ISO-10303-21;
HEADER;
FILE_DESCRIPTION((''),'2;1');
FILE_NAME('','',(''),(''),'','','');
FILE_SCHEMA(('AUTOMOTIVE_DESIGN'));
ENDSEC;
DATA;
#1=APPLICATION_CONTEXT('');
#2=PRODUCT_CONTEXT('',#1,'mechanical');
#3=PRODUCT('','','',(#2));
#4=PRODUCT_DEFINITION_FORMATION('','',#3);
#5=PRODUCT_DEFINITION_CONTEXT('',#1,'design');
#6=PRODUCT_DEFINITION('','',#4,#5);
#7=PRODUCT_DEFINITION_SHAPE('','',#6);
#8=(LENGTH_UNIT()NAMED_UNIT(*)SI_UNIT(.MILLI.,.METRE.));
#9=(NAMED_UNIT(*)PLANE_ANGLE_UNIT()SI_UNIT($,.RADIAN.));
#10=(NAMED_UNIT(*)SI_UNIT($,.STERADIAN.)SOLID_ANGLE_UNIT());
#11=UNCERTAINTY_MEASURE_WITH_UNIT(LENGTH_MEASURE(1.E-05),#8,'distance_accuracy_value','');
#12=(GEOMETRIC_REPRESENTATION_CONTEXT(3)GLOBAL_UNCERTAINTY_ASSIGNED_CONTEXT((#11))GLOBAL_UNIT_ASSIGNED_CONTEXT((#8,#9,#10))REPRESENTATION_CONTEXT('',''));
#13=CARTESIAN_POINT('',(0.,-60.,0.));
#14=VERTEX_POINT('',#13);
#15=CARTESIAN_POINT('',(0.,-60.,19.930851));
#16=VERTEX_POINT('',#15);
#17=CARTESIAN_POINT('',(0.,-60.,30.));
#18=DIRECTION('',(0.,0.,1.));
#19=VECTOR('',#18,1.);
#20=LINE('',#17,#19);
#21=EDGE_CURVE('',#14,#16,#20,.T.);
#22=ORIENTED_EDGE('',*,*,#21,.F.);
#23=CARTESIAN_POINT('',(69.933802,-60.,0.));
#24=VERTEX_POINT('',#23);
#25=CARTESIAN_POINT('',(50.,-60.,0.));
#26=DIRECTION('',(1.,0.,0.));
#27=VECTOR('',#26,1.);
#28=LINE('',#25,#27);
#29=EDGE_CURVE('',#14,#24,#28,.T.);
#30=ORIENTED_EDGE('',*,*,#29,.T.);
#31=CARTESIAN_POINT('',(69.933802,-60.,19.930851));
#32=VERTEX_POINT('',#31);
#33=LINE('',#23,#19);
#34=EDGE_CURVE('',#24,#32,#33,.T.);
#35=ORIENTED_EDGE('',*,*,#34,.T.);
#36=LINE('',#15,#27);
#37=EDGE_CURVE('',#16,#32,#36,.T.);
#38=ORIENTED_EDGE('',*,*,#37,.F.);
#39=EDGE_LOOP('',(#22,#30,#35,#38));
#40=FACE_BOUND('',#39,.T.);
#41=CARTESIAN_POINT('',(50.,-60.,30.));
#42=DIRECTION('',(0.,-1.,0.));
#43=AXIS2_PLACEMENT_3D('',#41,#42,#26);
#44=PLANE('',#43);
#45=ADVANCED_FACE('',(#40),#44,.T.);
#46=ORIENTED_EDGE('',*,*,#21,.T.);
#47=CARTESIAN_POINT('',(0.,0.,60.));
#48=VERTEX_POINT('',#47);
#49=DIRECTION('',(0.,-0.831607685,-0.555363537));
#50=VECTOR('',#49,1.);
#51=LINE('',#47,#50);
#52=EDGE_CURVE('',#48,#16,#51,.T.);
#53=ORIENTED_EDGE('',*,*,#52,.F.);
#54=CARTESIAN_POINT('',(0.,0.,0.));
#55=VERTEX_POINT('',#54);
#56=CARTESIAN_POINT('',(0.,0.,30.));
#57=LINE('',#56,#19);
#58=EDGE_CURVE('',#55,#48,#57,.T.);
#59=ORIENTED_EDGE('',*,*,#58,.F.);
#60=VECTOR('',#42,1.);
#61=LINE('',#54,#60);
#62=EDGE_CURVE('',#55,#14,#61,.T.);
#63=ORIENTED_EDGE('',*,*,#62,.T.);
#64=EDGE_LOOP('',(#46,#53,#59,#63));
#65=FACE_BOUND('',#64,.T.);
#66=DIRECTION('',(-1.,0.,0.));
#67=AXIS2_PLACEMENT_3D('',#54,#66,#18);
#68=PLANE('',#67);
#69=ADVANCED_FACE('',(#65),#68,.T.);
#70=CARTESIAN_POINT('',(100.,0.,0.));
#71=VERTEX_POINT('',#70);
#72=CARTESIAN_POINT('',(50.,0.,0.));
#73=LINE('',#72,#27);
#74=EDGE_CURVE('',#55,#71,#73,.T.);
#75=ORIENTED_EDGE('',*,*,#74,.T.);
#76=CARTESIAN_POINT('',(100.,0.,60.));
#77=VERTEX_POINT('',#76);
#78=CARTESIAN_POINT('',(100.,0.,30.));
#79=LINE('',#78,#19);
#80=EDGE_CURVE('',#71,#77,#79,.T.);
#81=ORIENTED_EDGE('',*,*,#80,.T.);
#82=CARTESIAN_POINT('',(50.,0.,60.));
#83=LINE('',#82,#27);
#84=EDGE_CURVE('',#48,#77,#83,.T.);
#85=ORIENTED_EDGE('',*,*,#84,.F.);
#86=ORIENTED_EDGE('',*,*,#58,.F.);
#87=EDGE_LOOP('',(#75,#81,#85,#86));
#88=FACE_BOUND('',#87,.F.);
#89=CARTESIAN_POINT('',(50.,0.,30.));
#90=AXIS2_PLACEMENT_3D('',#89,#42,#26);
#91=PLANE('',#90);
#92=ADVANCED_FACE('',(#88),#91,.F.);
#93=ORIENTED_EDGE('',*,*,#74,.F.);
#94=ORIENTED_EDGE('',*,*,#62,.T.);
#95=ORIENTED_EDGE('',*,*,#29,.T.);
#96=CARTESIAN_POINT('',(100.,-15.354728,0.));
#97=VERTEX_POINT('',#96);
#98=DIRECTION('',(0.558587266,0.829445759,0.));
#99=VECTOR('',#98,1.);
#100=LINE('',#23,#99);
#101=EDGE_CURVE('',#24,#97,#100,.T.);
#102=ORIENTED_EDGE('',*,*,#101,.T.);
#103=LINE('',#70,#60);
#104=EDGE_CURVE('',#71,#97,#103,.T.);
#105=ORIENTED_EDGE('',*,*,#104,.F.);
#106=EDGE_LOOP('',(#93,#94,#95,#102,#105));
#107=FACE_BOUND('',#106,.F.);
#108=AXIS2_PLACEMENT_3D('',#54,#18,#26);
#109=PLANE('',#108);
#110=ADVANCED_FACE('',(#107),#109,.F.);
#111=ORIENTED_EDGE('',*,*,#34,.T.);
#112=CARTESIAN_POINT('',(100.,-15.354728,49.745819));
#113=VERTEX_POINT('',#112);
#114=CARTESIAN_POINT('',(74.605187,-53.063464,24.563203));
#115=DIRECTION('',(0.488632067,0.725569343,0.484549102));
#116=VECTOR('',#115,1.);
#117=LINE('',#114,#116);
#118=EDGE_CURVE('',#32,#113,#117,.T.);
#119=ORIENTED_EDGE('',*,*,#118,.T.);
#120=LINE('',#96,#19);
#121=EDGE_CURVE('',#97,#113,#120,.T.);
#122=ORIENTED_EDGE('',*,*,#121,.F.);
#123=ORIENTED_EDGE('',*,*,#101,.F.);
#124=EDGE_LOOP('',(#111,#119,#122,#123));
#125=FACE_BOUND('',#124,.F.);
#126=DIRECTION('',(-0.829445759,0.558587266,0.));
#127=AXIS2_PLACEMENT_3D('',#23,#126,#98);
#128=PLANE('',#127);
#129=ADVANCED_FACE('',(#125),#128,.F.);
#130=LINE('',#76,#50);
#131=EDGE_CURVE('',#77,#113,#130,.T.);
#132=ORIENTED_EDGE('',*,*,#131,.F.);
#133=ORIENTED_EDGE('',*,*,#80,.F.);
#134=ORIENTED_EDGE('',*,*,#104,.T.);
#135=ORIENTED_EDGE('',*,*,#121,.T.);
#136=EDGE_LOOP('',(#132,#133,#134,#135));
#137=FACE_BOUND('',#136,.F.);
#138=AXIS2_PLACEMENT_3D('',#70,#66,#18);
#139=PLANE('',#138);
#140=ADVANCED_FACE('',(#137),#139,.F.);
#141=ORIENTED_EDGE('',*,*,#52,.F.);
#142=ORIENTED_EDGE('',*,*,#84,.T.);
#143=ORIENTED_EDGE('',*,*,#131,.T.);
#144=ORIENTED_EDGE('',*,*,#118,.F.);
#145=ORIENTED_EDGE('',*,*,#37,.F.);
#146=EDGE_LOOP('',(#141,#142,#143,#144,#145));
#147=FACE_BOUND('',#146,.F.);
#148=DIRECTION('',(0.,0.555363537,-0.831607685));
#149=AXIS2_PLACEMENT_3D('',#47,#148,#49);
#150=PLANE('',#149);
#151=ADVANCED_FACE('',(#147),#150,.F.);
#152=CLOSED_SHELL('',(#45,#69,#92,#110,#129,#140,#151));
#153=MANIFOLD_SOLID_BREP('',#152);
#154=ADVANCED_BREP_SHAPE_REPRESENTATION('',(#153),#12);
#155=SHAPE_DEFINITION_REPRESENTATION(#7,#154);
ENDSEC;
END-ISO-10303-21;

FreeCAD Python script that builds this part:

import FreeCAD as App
import Part
import Sketcher

V = App.Vector


def add_polygon(sketch, points):
    """Adds a closed chain of lines whose ends are joined by coincident constraints."""
    first, n = sketch.GeometryCount, len(points)
    for a, b in zip(points, points[1:] + points[:1]):
        sketch.addGeometry(Part.LineSegment(App.Vector(*a, 0), App.Vector(*b, 0)), False)
    for i in range(n):
        sketch.addConstraint(Sketcher.Constraint("Coincident", first + i, 2, first + (i + 1) % n, 1))

doc = App.newDocument("Part")
body = doc.addObject("PartDesign::Body", "Body")

sketch1 = body.newObject("Sketcher::SketchObject", "Sketch")
sketch1.AttachmentSupport = (doc.getObject("XZ_Plane"), [""])
sketch1.MapMode = "FlatFace"
add_polygon(sketch1, [(0, 60), (0, 0), (100, 0), (100, 60)])
sketch1.addConstraint(Sketcher.Constraint("Vertical", 0))
sketch1.addConstraint(Sketcher.Constraint("Horizontal", 1))
sketch1.addConstraint(Sketcher.Constraint("Vertical", 2))
sketch1.addConstraint(Sketcher.Constraint("Horizontal", 3))
sketch1.addConstraint(Sketcher.Constraint("Coincident", 0, 2, -1, 1))
sketch1.addConstraint(Sketcher.Constraint("DistanceX", 1, 1, 1, 2, 100.0))
sketch1.addConstraint(Sketcher.Constraint("DistanceY", 0, 2, 0, 1, 60.0))
pad1 = body.newObject("PartDesign::Pad", "Pad")
pad1.Profile = sketch1
pad1.Length = 60

sketch2 = body.newObject("Sketcher::SketchObject", "Sketch001")
sketch2.AttachmentSupport = (doc.getObject("YZ_Plane"), [""])
sketch2.MapMode = "FlatFace"
add_polygon(sketch2, [(0, 60), (-60, 20), (-60, 60)])
sketch2.addConstraint(Sketcher.Constraint("Vertical", 1))
sketch2.addConstraint(Sketcher.Constraint("Horizontal", 2))
sketch2.addConstraint(Sketcher.Constraint("PointOnObject", 2, 2, -2))
sketch2.addConstraint(Sketcher.Constraint("DistanceX", 2, 1, 2, 2, 60.0))
sketch2.addConstraint(Sketcher.Constraint("DistanceY", -1, 1, 1, 2, 60.0))
sketch2.addConstraint(Sketcher.Constraint("DistanceY", 1, 1, 1, 2, 40.069149))
pocket1 = body.newObject("PartDesign::Pocket", "Pocket")
pocket1.Profile = sketch2
pocket1.Length = 100
pocket1.Reversed = True

sketch3 = body.newObject("Sketcher::SketchObject", "Sketch002")
sketch3.AttachmentSupport = (doc.getObject("XY_Plane"), [""])
sketch3.MapMode = "FlatFace"
add_polygon(sketch3, [(100, -60), (70, -60), (100, -15)])
sketch3.addConstraint(Sketcher.Constraint("Horizontal", 0))
sketch3.addConstraint(Sketcher.Constraint("Vertical", 2))
sketch3.addConstraint(Sketcher.Constraint("DistanceY", 0, 2, -1, 1, 60.0))
sketch3.addConstraint(Sketcher.Constraint("DistanceX", -1, 1, 1, 2, 100.0))
sketch3.addConstraint(Sketcher.Constraint("DistanceX", 0, 2, 0, 1, 30.066198))
sketch3.addConstraint(Sketcher.Constraint("DistanceY", 2, 2, 2, 1, 44.645272))
pocket2 = body.newObject("PartDesign::Pocket", "Pocket001")
pocket2.Profile = sketch3
pocket2.Length = 73.8
pocket2.Reversed = True

doc.recompute()
